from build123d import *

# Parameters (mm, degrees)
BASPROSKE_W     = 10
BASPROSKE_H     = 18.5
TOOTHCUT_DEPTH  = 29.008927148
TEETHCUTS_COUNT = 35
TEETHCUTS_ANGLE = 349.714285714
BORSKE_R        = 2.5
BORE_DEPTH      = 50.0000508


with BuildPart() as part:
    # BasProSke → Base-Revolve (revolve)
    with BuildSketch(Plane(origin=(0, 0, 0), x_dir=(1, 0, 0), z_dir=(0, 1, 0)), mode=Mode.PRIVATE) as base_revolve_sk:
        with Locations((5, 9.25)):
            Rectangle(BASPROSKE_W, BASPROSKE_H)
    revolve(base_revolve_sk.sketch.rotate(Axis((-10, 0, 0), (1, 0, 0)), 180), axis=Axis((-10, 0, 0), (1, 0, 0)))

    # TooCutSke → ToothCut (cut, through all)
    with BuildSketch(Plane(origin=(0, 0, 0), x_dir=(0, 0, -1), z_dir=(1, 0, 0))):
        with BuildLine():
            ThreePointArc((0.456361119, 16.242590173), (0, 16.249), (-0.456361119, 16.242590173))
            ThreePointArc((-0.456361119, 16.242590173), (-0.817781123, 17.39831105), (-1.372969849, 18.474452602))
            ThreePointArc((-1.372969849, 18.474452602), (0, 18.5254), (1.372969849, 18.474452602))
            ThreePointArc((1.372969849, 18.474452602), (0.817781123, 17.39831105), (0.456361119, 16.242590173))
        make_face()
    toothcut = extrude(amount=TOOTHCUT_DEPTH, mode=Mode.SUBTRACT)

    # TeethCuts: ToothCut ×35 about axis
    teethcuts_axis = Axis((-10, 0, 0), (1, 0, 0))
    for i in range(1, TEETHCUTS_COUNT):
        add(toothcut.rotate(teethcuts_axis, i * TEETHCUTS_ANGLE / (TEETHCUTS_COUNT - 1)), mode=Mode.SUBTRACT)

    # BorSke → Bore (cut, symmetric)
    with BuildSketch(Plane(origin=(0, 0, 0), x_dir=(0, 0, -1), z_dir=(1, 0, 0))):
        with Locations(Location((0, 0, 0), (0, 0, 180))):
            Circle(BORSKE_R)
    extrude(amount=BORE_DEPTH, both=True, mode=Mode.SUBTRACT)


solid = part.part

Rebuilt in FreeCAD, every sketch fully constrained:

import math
import FreeCAD as App
import Part
import Sketcher


def add_polygon(sketch, points):
    """Adds a closed chain of lines whose ends are joined by coincident constraints."""
    first, n = sketch.GeometryCount, len(points)
    for a, b in zip(points, points[1:] + points[:1]):
        sketch.addGeometry(Part.LineSegment(App.Vector(*a, 0), App.Vector(*b, 0)), False)
    for i in range(n):
        sketch.addConstraint(Sketcher.Constraint("Coincident", first + i, 2, first + (i + 1) % n, 1))

doc = App.newDocument("Part")
body = doc.addObject("PartDesign::Body", "Body")

sketch1 = body.newObject("Sketcher::SketchObject", "Sketch")
sketch1.AttachmentSupport = (doc.getObject("XZ_Plane"), [""])
sketch1.MapMode = "FlatFace"
add_polygon(sketch1, [(0, -18), (0, 0), (10, 0), (10, -18)])
sketch1.addConstraint([
    Sketcher.Constraint("Vertical", 0),
    Sketcher.Constraint("Horizontal", 1),
    Sketcher.Constraint("Vertical", 2),
    Sketcher.Constraint("Horizontal", 3),
    Sketcher.Constraint("Coincident", 0, 2, -1, 1),
    Sketcher.Constraint("DistanceX", 1, 1, 1, 2, 10.0),
    Sketcher.Constraint("DistanceY", 0, 1, 0, 2, 18.5),
])
revolution = body.newObject("PartDesign::Revolution", "Revolution")
revolution.Profile = sketch1
revolution.ReferenceAxis = (sketch1, ["H_Axis"])
revolution.Angle = 360

sketch2 = body.newObject("Sketcher::SketchObject", "Sketch001")
sketch2.AttachmentSupport = (doc.getObject("YZ_Plane"), [""])
sketch2.MapMode = "FlatFace"
sketch2.addGeometry([
    Part.ArcOfCircle(Part.Circle(App.Vector(0, 0, 0), App.Vector(0, 0, 1), 16.2), math.radians(-1.61), math.radians(1.61)),
    Part.ArcOfCircle(Part.Circle(App.Vector(14.7, -7.3, 0), App.Vector(0, 0, 1), 7), math.radians(57.75), math.radians(77.6)),
    Part.ArcOfCircle(Part.Circle(App.Vector(0, 0, 0), App.Vector(0, 0, 1), 18.5), math.radians(-4.25), math.radians(4.25)),
    Part.ArcOfCircle(Part.Circle(App.Vector(14.7, 7.3, 0), App.Vector(0, 0, 1), 7), math.radians(-77.6), math.radians(-57.75)),
], False)
sketch2.addConstraint([
    Sketcher.Constraint("Coincident", 0, 1, 1, 2),
    Sketcher.Constraint("Coincident", 1, 1, 2, 1),
    Sketcher.Constraint("Coincident", 2, 2, 3, 2),
    Sketcher.Constraint("Coincident", 3, 1, 0, 2),
    Sketcher.Constraint("Coincident", 0, 3, -1, 1),
    Sketcher.Constraint("Coincident", 2, 3, -1, 1),
    Sketcher.Constraint("Equal", 1, 3),
    Sketcher.Constraint("Symmetric", 1, 3, 3, 3, -1),
    Sketcher.Constraint("Radius", 1, 7.0),
    Sketcher.Constraint("Radius", 0, 16.249),
    Sketcher.Constraint("Radius", 2, 18.5254),
    Sketcher.Constraint("DistanceY", 1, 3, 1, 1, 5.92),
    Sketcher.Constraint("DistanceX", -1, 1, 1, 3, 14.739001),
])
pocket1 = body.newObject("PartDesign::Pocket", "Pocket")
pocket1.Profile = sketch2
pocket1.Type = "ThroughAll"
pocket1.Reversed = True
doc.recompute()

polarpattern = body.newObject("PartDesign::PolarPattern", "PolarPattern")
polarpattern.Originals = [pocket1]
polarpattern.Axis = (doc.getObject("X_Axis"), [""])
polarpattern.Angle = 360
polarpattern.Occurrences = 35
body.Tip = polarpattern

sketch3 = body.newObject("Sketcher::SketchObject", "Sketch002")
sketch3.AttachmentSupport = (doc.getObject("YZ_Plane"), [""])
sketch3.MapMode = "FlatFace"
sketch3.addGeometry(Part.Circle(App.Vector(0, 0, 0), App.Vector(0, 0, 1), 2.5), False)
sketch3.addConstraint([
    Sketcher.Constraint("Coincident", 0, 3, -1, 1),
    Sketcher.Constraint("Diameter", 0, 5.0),
])
pocket2 = body.newObject("PartDesign::Pocket", "Pocket001")
pocket2.Profile = sketch3
pocket2.Length = 100.000102
pocket2.Midplane = True

doc.recompute()
